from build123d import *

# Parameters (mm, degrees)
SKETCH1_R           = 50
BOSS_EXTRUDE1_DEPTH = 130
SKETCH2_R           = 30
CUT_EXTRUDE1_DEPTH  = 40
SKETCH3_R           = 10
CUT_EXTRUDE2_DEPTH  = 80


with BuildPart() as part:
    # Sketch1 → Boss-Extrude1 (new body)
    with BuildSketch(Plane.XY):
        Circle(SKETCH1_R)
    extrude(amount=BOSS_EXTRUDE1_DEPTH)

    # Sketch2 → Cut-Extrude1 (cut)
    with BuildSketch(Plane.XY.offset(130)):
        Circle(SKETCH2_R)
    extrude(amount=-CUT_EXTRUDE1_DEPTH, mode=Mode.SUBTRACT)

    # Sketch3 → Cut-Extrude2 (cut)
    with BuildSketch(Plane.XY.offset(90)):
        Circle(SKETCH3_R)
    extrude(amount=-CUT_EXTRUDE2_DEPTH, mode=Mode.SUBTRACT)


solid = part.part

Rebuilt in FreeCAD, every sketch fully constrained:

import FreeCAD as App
import Part
import Sketcher
from FreeCAD import Vector

doc = App.newDocument("Part")
body = doc.addObject("PartDesign::Body", "Body")

sketch1 = doc.addObject("Sketcher::SketchObject", "Sketch")
body.addObject(sketch1)
sketch1.AttachmentSupport = (doc.XY_Plane, [""])
sketch1.MapMode = "FlatFace"
sketch1.addGeometry(Part.Circle(Vector(0, 0, 0), Vector(0, 0, 1), 50), False)
sketch1.addConstraint(Sketcher.Constraint("Coincident", 0, 3, -1, 1))
sketch1.addConstraint(Sketcher.Constraint("Diameter", 0, 100.0))
pad1 = doc.addObject("PartDesign::Pad", "Pad")
body.addObject(pad1)
pad1.Profile = sketch1
pad1.Length = 130

sketch2 = doc.addObject("Sketcher::SketchObject", "Sketch001")
body.addObject(sketch2)
sketch2.AttachmentSupport = (doc.XY_Plane, [""])
sketch2.MapMode = "FlatFace"
sketch2.AttachmentOffset = App.Placement(Vector(0, 0, 130), App.Rotation())
sketch2.addGeometry(Part.Circle(Vector(0, 0, 0), Vector(0, 0, 1), 30), False)
sketch2.addConstraint(Sketcher.Constraint("Coincident", 0, 3, -1, 1))
sketch2.addConstraint(Sketcher.Constraint("Diameter", 0, 60.0))
pocket1 = doc.addObject("PartDesign::Pocket", "Pocket")
body.addObject(pocket1)
pocket1.Profile = sketch2
pocket1.Length = 40

sketch3 = doc.addObject("Sketcher::SketchObject", "Sketch002")
body.addObject(sketch3)
sketch3.AttachmentSupport = (doc.XY_Plane, [""])
sketch3.MapMode = "FlatFace"
sketch3.AttachmentOffset = App.Placement(Vector(0, 0, 90), App.Rotation())
sketch3.addGeometry(Part.Circle(Vector(0, 0, 0), Vector(0, 0, 1), 10), False)
sketch3.addConstraint(Sketcher.Constraint("Coincident", 0, 3, -1, 1))
sketch3.addConstraint(Sketcher.Constraint("Diameter", 0, 20.0))
pocket2 = doc.addObject("PartDesign::Pocket", "Pocket001")
body.addObject(pocket2)
pocket2.Profile = sketch3
pocket2.Length = 80

doc.recompute()
